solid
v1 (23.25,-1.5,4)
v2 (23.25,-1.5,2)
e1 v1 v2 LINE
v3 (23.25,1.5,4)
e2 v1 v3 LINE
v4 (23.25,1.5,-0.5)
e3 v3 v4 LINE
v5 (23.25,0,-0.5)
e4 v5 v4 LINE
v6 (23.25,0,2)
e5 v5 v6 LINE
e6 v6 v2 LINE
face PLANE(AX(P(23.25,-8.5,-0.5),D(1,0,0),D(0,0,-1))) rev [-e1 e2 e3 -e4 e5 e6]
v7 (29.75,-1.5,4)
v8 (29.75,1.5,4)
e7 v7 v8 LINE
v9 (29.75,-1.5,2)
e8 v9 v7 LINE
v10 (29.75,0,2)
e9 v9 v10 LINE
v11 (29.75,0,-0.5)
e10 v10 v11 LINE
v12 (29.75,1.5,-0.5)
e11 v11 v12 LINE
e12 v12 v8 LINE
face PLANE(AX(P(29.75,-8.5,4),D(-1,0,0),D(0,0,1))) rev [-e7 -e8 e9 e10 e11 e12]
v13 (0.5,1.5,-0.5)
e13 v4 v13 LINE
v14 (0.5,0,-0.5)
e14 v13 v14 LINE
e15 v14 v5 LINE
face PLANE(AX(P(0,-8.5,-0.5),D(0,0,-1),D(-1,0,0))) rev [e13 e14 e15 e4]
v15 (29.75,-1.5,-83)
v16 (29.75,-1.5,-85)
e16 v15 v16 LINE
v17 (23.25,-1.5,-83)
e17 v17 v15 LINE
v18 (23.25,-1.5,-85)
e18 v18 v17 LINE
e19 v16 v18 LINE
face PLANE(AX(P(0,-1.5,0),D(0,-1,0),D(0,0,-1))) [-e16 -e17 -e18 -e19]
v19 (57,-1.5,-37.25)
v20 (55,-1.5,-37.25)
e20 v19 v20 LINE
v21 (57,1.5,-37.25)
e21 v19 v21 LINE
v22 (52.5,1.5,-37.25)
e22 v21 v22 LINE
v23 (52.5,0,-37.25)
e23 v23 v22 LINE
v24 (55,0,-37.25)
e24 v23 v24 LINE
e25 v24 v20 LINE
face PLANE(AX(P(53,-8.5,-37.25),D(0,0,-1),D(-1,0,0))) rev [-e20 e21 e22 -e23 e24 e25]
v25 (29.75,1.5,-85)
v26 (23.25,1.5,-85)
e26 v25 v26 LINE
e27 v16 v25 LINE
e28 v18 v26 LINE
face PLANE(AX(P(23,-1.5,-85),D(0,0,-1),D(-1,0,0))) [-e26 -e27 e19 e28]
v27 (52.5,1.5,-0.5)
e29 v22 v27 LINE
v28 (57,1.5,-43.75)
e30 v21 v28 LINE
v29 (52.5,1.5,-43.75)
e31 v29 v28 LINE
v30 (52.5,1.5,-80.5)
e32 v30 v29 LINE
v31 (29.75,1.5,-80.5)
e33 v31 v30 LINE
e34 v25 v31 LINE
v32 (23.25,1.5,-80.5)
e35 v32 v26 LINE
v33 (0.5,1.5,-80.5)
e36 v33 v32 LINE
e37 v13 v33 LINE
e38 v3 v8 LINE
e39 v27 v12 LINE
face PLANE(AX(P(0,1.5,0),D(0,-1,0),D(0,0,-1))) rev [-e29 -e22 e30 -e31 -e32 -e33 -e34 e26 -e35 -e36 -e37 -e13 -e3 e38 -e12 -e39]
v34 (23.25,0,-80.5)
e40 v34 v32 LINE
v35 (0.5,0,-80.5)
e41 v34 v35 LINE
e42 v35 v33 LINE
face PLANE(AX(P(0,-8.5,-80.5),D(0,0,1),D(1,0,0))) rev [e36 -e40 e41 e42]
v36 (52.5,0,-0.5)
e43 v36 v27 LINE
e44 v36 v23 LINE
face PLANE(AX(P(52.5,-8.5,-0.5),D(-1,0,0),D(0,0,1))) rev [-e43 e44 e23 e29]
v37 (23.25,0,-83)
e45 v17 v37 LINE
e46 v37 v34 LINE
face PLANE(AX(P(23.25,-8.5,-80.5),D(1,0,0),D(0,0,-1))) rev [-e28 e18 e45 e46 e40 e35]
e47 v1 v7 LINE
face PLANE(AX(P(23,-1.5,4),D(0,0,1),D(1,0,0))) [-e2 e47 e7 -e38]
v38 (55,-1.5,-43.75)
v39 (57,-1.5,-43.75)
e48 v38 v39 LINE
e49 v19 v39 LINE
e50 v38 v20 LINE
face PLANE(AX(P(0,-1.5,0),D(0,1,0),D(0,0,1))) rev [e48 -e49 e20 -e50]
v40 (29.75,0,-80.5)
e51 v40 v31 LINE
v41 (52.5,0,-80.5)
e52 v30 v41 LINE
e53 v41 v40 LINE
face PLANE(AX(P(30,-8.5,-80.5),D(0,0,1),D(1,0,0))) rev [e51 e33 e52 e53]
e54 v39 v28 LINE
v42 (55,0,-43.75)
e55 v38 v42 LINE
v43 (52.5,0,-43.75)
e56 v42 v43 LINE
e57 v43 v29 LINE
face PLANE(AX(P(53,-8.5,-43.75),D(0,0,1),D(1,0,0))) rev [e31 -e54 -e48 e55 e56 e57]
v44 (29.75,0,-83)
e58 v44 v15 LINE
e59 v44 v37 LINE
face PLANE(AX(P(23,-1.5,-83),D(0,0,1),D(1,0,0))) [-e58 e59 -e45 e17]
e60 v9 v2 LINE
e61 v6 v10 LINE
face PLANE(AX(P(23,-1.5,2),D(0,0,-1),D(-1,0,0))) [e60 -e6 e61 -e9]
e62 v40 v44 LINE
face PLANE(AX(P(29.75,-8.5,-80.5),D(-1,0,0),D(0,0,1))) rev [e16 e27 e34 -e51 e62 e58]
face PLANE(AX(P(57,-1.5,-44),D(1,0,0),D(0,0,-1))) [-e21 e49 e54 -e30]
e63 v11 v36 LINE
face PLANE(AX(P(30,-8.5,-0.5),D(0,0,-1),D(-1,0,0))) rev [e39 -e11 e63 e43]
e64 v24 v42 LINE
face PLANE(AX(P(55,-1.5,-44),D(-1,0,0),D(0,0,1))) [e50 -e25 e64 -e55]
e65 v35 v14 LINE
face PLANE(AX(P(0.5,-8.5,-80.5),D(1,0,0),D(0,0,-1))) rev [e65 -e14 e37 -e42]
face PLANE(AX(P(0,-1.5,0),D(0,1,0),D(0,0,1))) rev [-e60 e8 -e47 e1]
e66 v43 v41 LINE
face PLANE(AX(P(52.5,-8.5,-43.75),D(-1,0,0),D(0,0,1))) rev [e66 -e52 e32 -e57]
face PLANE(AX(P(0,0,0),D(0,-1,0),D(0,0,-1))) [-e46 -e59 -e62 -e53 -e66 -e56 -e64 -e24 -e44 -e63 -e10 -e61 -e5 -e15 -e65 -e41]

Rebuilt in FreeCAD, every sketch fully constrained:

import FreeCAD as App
import Part
import Sketcher


def add_polygon(sketch, points):
    """Adds a closed chain of lines whose ends are joined by coincident constraints."""
    first, n = sketch.GeometryCount, len(points)
    for a, b in zip(points, points[1:] + points[:1]):
        sketch.addGeometry(Part.LineSegment(App.Vector(*a, 0), App.Vector(*b, 0)), False)
    for i in range(n):
        sketch.addConstraint(Sketcher.Constraint("Coincident", first + i, 2, first + (i + 1) % n, 1))

doc = App.newDocument("Part")
body = doc.addObject("PartDesign::Body", "Body")

# Sketch on XZ plane
sketch1 = doc.addObject("Sketcher::SketchObject", "Sketch")
body.addObject(sketch1)
sketch1.AttachmentSupport = (doc.XZ_Plane, [""])
sketch1.MapMode = "FlatFace"
add_polygon(sketch1, [(53, -81), (30, -81), (30, -83), (23, -83), (23, -81), (0, -81), (0, 0), (23, 0), (23, 2), (30, 2), (30, 0), (53, 0), (53, -37), (55, -37), (55, -44), (53, -44)])  # lines 0-15
sketch1.addConstraint([
    Sketcher.Constraint("Horizontal", 0),
    Sketcher.Constraint("Vertical", 1),
    Sketcher.Constraint("Horizontal", 2),
    Sketcher.Constraint("Vertical", 3),
    Sketcher.Constraint("Horizontal", 4),
    Sketcher.Constraint("Vertical", 5),
    Sketcher.Constraint("Horizontal", 6),
    Sketcher.Constraint("Vertical", 7),
    Sketcher.Constraint("Horizontal", 8),
    Sketcher.Constraint("Vertical", 9),
    Sketcher.Constraint("Horizontal", 10),
    Sketcher.Constraint("Vertical", 11),
    Sketcher.Constraint("Horizontal", 12),
    Sketcher.Constraint("Vertical", 13),
    Sketcher.Constraint("Horizontal", 14),
    Sketcher.Constraint("Vertical", 15),
    Sketcher.Constraint("Coincident", 5, 2, -1, 1),
    Sketcher.Constraint("PointOnObject", 9, 2, -1),
    Sketcher.Constraint("Horizontal", 0, 2, 3, 2),
    Sketcher.Constraint("Vertical", 3, 2, 6, 2),
    Sketcher.Constraint("Vertical", 1, 2, 8, 2),
    Sketcher.Constraint("Vertical", 11, 2, 14, 2),
    Sketcher.Constraint("Equal", 0, 4),
    Sketcher.Constraint("Equal", 14, 1),
    Sketcher.Constraint("Equal", 3, 7),
    Sketcher.Constraint("Equal", 8, 13),
    Sketcher.Constraint("Equal", 11, 15),
    Sketcher.Constraint("DistanceX", 0, 2, 0, 1, 23.0),
    Sketcher.Constraint("DistanceX", 2, 2, 2, 1, 7.0),
    Sketcher.Constraint("DistanceX", 12, 1, 12, 2, 2.0),
    Sketcher.Constraint("DistanceY", 5, 1, 5, 2, 81.0),
])
pad1 = doc.addObject("PartDesign::Pad", "Pad")
body.addObject(pad1)
pad1.Profile = sketch1
pad1.Length = 1.5
pad1.Reversed = True

# Sketch on XZ plane
sketch2 = doc.addObject("Sketcher::SketchObject", "Sketch001")
body.addObject(sketch2)
sketch2.AttachmentSupport = (doc.XZ_Plane, [""])
sketch2.MapMode = "FlatFace"
sketch2.AttachmentOffset = App.Placement(App.Vector(0, 0, -1.5), App.Rotation())
add_polygon(sketch2, [(23, -85), (23, -83), (30, -83), (30, -85)])  # lines 0-3
add_polygon(sketch2, [(55, -44), (55, -37), (57, -37), (57, -44)])  # lines 4-7
add_polygon(sketch2, [(23, 2), (23, 4), (30, 4), (30, 2)])  # lines 8-11
sketch2.addConstraint([
    Sketcher.Constraint("Vertical", 0),
    Sketcher.Constraint("Horizontal", 1),
    Sketcher.Constraint("Vertical", 2),
    Sketcher.Constraint("Horizontal", 3),
    Sketcher.Constraint("Vertical", 4),
    Sketcher.Constraint("Horizontal", 5),
    Sketcher.Constraint("Vertical", 6),
    Sketcher.Constraint("Horizontal", 7),
    Sketcher.Constraint("Vertical", 8),
    Sketcher.Constraint("Horizontal", 9),
    Sketcher.Constraint("Vertical", 10),
    Sketcher.Constraint("Horizontal", 11),
    Sketcher.Constraint("Vertical", 3, 2, 8, 2),
    Sketcher.Constraint("Vertical", 2, 2, 9, 2),
    Sketcher.Constraint("Equal", 7, 0),
    Sketcher.Constraint("Equal", 11, 4),
    Sketcher.Constraint("Equal", 2, 8),
    Sketcher.Constraint("DistanceX", 1, 1, 1, 2, 7.0),
    Sketcher.Constraint("DistanceX", 5, 1, 5, 2, 2.0),
    Sketcher.Constraint("DistanceX", -1, 1, 0, 2, 23.0),
    Sketcher.Constraint("DistanceY", 0, 2, -1, 1, 83.0),
    Sketcher.Constraint("DistanceX", -1, 1, 4, 2, 55.0),
    Sketcher.Constraint("DistanceY", 4, 2, -1, 1, 37.0),
    Sketcher.Constraint("DistanceY", -1, 1, 8, 2, 4.0),
])
pad2 = doc.addObject("PartDesign::Pad", "Pad001")
body.addObject(pad2)
pad2.Profile = sketch2
pad2.Length = 3

# Sketch on XZ plane
sketch3 = doc.addObject("Sketcher::SketchObject", "Sketch002")
body.addObject(sketch3)
sketch3.AttachmentSupport = (doc.XZ_Plane, [""])
sketch3.MapMode = "FlatFace"
sketch3.AttachmentOffset = App.Placement(App.Vector(0, 0, -1.5), App.Rotation())
add_polygon(sketch3, [(0, -81), (0, -80.5), (23, -80.5), (23, -81)])  # lines 0-3
add_polygon(sketch3, [(30, -81), (30, -80.5), (53, -80.5), (53, -81)])  # lines 4-7
sketch3.addConstraint([
    Sketcher.Constraint("Vertical", 0),
    Sketcher.Constraint("Horizontal", 1),
    Sketcher.Constraint("Vertical", 2),
    Sketcher.Constraint("Horizontal", 3),
    Sketcher.Constraint("Vertical", 4),
    Sketcher.Constraint("Horizontal", 5),
    Sketcher.Constraint("Vertical", 6),
    Sketcher.Constraint("Horizontal", 7),
    Sketcher.Constraint("PointOnObject", 0, 2, -2),
    Sketcher.Constraint("Horizontal", 1, 2, 4, 2),
    Sketcher.Constraint("Horizontal", 3, 2, 6, 2),
    Sketcher.Constraint("Equal", 3, 5),
    Sketcher.Constraint("DistanceX", 1, 1, 1, 2, 23.0),
    Sketcher.Constraint("DistanceY", 0, 1, 0, 2, 0.5),
    Sketcher.Constraint("DistanceY", 2, 2, -1, 1, 81.0),
    Sketcher.Constraint("DistanceX", -1, 1, 4, 2, 30.0),
])
pocket1 = doc.addObject("PartDesign::Pocket", "Pocket")
body.addObject(pocket1)
pocket1.Profile = sketch3
pocket1.Length = 10
pocket1.Reversed = True

# Sketch on XZ plane
sketch4 = doc.addObject("Sketcher::SketchObject", "Sketch003")
body.addObject(sketch4)
sketch4.AttachmentSupport = (doc.XZ_Plane, [""])
sketch4.MapMode = "FlatFace"
sketch4.AttachmentOffset = App.Placement(App.Vector(0, 0, -1.5), App.Rotation())
add_polygon(sketch4, [(0, -0.5), (0, 0), (23, 0), (23, -0.5)])  # lines 0-3
add_polygon(sketch4, [(30, -0.5), (30, 0), (53, 0), (53, -0.5)])  # lines 4-7
sketch4.addConstraint([
    Sketcher.Constraint("Vertical", 0),
    Sketcher.Constraint("Horizontal", 1),
    Sketcher.Constraint("Vertical", 2),
    Sketcher.Constraint("Horizontal", 3),
    Sketcher.Constraint("Vertical", 4),
    Sketcher.Constraint("Horizontal", 5),
    Sketcher.Constraint("Vertical", 6),
    Sketcher.Constraint("Horizontal", 7),
    Sketcher.Constraint("Coincident", 0, 2, -1, 1),
    Sketcher.Constraint("PointOnObject", 4, 2, -1),
    Sketcher.Constraint("Horizontal", 3, 2, 6, 2),
    Sketcher.Constraint("Equal", 3, 5),
    Sketcher.Constraint("DistanceX", 1, 1, 1, 2, 23.0),
    Sketcher.Constraint("DistanceY", 0, 1, 0, 2, 0.5),
    Sketcher.Constraint("DistanceX", -1, 1, 4, 2, 30.0),
])
pocket2 = doc.addObject("PartDesign::Pocket", "Pocket001")
body.addObject(pocket2)
pocket2.Profile = sketch4
pocket2.Length = 10
pocket2.Reversed = True

# Sketch on XZ plane
sketch5 = doc.addObject("Sketcher::SketchObject", "Sketch004")
body.addObject(sketch5)
sketch5.AttachmentSupport = (doc.XZ_Plane, [""])
sketch5.MapMode = "FlatFace"
sketch5.AttachmentOffset = App.Placement(App.Vector(0, 0, -1.5), App.Rotation())
add_polygon(sketch5, [(23, -85), (23, -80.5), (23.25, -80.5), (23.25, -85)])  # lines 0-3
add_polygon(sketch5, [(29.75, -85), (29.75, -80.5), (30, -80.5), (30, -85)])  # lines 4-7
add_polygon(sketch5, [(53, -44), (53, -43.75), (57, -43.75), (57, -44)])  # lines 8-11
add_polygon(sketch5, [(53, -37.25), (53, -37), (57, -37), (57, -37.25)])  # lines 12-15
add_polygon(sketch5, [(23, -0.5), (23, 4), (23.25, 4), (23.25, -0.5)])  # lines 16-19
add_polygon(sketch5, [(29.75, -0.5), (29.75, 4), (30, 4), (30, -0.5)])  # lines 20-23
sketch5.addConstraint([
    Sketcher.Constraint("Vertical", 0),
    Sketcher.Constraint("Horizontal", 1),
    Sketcher.Constraint("Vertical", 2),
    Sketcher.Constraint("Horizontal", 3),
    Sketcher.Constraint("Vertical", 4),
    Sketcher.Constraint("Horizontal", 5),
    Sketcher.Constraint("Vertical", 6),
    Sketcher.Constraint("Horizontal", 7),
    Sketcher.Constraint("Vertical", 8),
    Sketcher.Constraint("Horizontal", 9),
    Sketcher.Constraint("Vertical", 10),
    Sketcher.Constraint("Horizontal", 11),
    Sketcher.Constraint("Vertical", 12),
    Sketcher.Constraint("Horizontal", 13),
    Sketcher.Constraint("Vertical", 14),
    Sketcher.Constraint("Horizontal", 15),
    Sketcher.Constraint("Vertical", 16),
    Sketcher.Constraint("Horizontal", 17),
    Sketcher.Constraint("Vertical", 18),
    Sketcher.Constraint("Horizontal", 19),
    Sketcher.Constraint("Vertical", 20),
    Sketcher.Constraint("Horizontal", 21),
    Sketcher.Constraint("Vertical", 22),
    Sketcher.Constraint("Horizontal", 23),
    Sketcher.Constraint("Horizontal", 1, 2, 4, 2),
    Sketcher.Constraint("Horizontal", 3, 2, 6, 2),
    Sketcher.Constraint("Horizontal", 17, 2, 20, 2),
    Sketcher.Constraint("Horizontal", 19, 2, 22, 2),
    Sketcher.Constraint("Vertical", 11, 2, 12, 2),
    Sketcher.Constraint("Vertical", 10, 2, 13, 2),
    Sketcher.Constraint("Vertical", 3, 2, 16, 2),
    Sketcher.Constraint("Vertical", 2, 2, 17, 2),
    Sketcher.Constraint("Vertical", 7, 2, 20, 2),
    Sketcher.Constraint("Vertical", 6, 2, 21, 2),
    Sketcher.Constraint("Equal", 3, 5),
    Sketcher.Constraint("Equal", 23, 8),
    Sketcher.Constraint("Equal", 10, 12),
    Sketcher.Constraint("Equal", 6, 16),
    Sketcher.Constraint("DistanceX", 9, 1, 9, 2, 4.0),
    Sketcher.Constraint("DistanceY", 0, 1, 0, 2, 4.5),
    Sketcher.Constraint("DistanceX", -1, 1, 0, 2, 23.0),
    Sketcher.Constraint("DistanceY", 2, 2, -1, 1, 85.0),
    Sketcher.Constraint("DistanceX", -1, 1, 5, 2, 30.0),
    Sketcher.Constraint("DistanceX", -1, 1, 8, 2, 53.0),
    Sketcher.Constraint("DistanceY", 10, 2, -1, 1, 44.0),
    Sketcher.Constraint("DistanceY", 12, 2, -1, 1, 37.0),
    Sketcher.Constraint("DistanceY", -1, 1, 16, 2, 4.0),
    Sketcher.Constraint("DistanceX", 1, 1, 1, 2, 0.25),
])
pocket3 = doc.addObject("PartDesign::Pocket", "Pocket002")
body.addObject(pocket3)
pocket3.Profile = sketch5
pocket3.Length = 10
pocket3.Reversed = True

# Sketch on XZ plane
sketch6 = doc.addObject("Sketcher::SketchObject", "Sketch005")
body.addObject(sketch6)
sketch6.AttachmentSupport = (doc.XZ_Plane, [""])
sketch6.MapMode = "FlatFace"
sketch6.AttachmentOffset = App.Placement(App.Vector(0, 0, -1.5), App.Rotation())
add_polygon(sketch6, [(0, -80.5), (0, -0.5), (0.5, -0.5), (0.5, -80.5)])  # lines 0-3
add_polygon(sketch6, [(52.5, -37.2), (52.5, -0.5), (53, -0.5), (53, -37.2)])  # lines 4-7
add_polygon(sketch6, [(52.5, -80.5), (52.5, -43.8), (53, -43.8), (53, -80.5)])  # lines 8-11
sketch6.addConstraint([
    Sketcher.Constraint("Vertical", 0),
    Sketcher.Constraint("Horizontal", 1),
    Sketcher.Constraint("Vertical", 2),
    Sketcher.Constraint("Horizontal", 3),
    Sketcher.Constraint("Vertical", 4),
    Sketcher.Constraint("Horizontal", 5),
    Sketcher.Constraint("Vertical", 6),
    Sketcher.Constraint("Horizontal", 7),
    Sketcher.Constraint("Vertical", 8),
    Sketcher.Constraint("Horizontal", 9),
    Sketcher.Constraint("Vertical", 10),
    Sketcher.Constraint("Horizontal", 11),
    Sketcher.Constraint("PointOnObject", 0, 2, -2),
    Sketcher.Constraint("Horizontal", 1, 2, 4, 2),
    Sketcher.Constraint("Horizontal", 3, 2, 10, 2),
    Sketcher.Constraint("Vertical", 7, 2, 8, 2),
    Sketcher.Constraint("Vertical", 6, 2, 9, 2),
    Sketcher.Constraint("Equal", 3, 5),
    Sketcher.Constraint("Equal", 6, 8),
    Sketcher.Constraint("DistanceY", 0, 1, 0, 2, 80.0),
    Sketcher.Constraint("DistanceX", 1, 1, 1, 2, 0.5),
    Sketcher.Constraint("DistanceX", -1, 1, 5, 2, 53.0),
    Sketcher.Constraint("DistanceY", 4, 1, 4, 2, 36.75),
    Sketcher.Constraint("DistanceY", 0, 2, -1, 1, 0.5),
])
pocket4 = doc.addObject("PartDesign::Pocket", "Pocket003")
body.addObject(pocket4)
pocket4.Profile = sketch6
pocket4.Length = 10
pocket4.Reversed = True

doc.recompute()
